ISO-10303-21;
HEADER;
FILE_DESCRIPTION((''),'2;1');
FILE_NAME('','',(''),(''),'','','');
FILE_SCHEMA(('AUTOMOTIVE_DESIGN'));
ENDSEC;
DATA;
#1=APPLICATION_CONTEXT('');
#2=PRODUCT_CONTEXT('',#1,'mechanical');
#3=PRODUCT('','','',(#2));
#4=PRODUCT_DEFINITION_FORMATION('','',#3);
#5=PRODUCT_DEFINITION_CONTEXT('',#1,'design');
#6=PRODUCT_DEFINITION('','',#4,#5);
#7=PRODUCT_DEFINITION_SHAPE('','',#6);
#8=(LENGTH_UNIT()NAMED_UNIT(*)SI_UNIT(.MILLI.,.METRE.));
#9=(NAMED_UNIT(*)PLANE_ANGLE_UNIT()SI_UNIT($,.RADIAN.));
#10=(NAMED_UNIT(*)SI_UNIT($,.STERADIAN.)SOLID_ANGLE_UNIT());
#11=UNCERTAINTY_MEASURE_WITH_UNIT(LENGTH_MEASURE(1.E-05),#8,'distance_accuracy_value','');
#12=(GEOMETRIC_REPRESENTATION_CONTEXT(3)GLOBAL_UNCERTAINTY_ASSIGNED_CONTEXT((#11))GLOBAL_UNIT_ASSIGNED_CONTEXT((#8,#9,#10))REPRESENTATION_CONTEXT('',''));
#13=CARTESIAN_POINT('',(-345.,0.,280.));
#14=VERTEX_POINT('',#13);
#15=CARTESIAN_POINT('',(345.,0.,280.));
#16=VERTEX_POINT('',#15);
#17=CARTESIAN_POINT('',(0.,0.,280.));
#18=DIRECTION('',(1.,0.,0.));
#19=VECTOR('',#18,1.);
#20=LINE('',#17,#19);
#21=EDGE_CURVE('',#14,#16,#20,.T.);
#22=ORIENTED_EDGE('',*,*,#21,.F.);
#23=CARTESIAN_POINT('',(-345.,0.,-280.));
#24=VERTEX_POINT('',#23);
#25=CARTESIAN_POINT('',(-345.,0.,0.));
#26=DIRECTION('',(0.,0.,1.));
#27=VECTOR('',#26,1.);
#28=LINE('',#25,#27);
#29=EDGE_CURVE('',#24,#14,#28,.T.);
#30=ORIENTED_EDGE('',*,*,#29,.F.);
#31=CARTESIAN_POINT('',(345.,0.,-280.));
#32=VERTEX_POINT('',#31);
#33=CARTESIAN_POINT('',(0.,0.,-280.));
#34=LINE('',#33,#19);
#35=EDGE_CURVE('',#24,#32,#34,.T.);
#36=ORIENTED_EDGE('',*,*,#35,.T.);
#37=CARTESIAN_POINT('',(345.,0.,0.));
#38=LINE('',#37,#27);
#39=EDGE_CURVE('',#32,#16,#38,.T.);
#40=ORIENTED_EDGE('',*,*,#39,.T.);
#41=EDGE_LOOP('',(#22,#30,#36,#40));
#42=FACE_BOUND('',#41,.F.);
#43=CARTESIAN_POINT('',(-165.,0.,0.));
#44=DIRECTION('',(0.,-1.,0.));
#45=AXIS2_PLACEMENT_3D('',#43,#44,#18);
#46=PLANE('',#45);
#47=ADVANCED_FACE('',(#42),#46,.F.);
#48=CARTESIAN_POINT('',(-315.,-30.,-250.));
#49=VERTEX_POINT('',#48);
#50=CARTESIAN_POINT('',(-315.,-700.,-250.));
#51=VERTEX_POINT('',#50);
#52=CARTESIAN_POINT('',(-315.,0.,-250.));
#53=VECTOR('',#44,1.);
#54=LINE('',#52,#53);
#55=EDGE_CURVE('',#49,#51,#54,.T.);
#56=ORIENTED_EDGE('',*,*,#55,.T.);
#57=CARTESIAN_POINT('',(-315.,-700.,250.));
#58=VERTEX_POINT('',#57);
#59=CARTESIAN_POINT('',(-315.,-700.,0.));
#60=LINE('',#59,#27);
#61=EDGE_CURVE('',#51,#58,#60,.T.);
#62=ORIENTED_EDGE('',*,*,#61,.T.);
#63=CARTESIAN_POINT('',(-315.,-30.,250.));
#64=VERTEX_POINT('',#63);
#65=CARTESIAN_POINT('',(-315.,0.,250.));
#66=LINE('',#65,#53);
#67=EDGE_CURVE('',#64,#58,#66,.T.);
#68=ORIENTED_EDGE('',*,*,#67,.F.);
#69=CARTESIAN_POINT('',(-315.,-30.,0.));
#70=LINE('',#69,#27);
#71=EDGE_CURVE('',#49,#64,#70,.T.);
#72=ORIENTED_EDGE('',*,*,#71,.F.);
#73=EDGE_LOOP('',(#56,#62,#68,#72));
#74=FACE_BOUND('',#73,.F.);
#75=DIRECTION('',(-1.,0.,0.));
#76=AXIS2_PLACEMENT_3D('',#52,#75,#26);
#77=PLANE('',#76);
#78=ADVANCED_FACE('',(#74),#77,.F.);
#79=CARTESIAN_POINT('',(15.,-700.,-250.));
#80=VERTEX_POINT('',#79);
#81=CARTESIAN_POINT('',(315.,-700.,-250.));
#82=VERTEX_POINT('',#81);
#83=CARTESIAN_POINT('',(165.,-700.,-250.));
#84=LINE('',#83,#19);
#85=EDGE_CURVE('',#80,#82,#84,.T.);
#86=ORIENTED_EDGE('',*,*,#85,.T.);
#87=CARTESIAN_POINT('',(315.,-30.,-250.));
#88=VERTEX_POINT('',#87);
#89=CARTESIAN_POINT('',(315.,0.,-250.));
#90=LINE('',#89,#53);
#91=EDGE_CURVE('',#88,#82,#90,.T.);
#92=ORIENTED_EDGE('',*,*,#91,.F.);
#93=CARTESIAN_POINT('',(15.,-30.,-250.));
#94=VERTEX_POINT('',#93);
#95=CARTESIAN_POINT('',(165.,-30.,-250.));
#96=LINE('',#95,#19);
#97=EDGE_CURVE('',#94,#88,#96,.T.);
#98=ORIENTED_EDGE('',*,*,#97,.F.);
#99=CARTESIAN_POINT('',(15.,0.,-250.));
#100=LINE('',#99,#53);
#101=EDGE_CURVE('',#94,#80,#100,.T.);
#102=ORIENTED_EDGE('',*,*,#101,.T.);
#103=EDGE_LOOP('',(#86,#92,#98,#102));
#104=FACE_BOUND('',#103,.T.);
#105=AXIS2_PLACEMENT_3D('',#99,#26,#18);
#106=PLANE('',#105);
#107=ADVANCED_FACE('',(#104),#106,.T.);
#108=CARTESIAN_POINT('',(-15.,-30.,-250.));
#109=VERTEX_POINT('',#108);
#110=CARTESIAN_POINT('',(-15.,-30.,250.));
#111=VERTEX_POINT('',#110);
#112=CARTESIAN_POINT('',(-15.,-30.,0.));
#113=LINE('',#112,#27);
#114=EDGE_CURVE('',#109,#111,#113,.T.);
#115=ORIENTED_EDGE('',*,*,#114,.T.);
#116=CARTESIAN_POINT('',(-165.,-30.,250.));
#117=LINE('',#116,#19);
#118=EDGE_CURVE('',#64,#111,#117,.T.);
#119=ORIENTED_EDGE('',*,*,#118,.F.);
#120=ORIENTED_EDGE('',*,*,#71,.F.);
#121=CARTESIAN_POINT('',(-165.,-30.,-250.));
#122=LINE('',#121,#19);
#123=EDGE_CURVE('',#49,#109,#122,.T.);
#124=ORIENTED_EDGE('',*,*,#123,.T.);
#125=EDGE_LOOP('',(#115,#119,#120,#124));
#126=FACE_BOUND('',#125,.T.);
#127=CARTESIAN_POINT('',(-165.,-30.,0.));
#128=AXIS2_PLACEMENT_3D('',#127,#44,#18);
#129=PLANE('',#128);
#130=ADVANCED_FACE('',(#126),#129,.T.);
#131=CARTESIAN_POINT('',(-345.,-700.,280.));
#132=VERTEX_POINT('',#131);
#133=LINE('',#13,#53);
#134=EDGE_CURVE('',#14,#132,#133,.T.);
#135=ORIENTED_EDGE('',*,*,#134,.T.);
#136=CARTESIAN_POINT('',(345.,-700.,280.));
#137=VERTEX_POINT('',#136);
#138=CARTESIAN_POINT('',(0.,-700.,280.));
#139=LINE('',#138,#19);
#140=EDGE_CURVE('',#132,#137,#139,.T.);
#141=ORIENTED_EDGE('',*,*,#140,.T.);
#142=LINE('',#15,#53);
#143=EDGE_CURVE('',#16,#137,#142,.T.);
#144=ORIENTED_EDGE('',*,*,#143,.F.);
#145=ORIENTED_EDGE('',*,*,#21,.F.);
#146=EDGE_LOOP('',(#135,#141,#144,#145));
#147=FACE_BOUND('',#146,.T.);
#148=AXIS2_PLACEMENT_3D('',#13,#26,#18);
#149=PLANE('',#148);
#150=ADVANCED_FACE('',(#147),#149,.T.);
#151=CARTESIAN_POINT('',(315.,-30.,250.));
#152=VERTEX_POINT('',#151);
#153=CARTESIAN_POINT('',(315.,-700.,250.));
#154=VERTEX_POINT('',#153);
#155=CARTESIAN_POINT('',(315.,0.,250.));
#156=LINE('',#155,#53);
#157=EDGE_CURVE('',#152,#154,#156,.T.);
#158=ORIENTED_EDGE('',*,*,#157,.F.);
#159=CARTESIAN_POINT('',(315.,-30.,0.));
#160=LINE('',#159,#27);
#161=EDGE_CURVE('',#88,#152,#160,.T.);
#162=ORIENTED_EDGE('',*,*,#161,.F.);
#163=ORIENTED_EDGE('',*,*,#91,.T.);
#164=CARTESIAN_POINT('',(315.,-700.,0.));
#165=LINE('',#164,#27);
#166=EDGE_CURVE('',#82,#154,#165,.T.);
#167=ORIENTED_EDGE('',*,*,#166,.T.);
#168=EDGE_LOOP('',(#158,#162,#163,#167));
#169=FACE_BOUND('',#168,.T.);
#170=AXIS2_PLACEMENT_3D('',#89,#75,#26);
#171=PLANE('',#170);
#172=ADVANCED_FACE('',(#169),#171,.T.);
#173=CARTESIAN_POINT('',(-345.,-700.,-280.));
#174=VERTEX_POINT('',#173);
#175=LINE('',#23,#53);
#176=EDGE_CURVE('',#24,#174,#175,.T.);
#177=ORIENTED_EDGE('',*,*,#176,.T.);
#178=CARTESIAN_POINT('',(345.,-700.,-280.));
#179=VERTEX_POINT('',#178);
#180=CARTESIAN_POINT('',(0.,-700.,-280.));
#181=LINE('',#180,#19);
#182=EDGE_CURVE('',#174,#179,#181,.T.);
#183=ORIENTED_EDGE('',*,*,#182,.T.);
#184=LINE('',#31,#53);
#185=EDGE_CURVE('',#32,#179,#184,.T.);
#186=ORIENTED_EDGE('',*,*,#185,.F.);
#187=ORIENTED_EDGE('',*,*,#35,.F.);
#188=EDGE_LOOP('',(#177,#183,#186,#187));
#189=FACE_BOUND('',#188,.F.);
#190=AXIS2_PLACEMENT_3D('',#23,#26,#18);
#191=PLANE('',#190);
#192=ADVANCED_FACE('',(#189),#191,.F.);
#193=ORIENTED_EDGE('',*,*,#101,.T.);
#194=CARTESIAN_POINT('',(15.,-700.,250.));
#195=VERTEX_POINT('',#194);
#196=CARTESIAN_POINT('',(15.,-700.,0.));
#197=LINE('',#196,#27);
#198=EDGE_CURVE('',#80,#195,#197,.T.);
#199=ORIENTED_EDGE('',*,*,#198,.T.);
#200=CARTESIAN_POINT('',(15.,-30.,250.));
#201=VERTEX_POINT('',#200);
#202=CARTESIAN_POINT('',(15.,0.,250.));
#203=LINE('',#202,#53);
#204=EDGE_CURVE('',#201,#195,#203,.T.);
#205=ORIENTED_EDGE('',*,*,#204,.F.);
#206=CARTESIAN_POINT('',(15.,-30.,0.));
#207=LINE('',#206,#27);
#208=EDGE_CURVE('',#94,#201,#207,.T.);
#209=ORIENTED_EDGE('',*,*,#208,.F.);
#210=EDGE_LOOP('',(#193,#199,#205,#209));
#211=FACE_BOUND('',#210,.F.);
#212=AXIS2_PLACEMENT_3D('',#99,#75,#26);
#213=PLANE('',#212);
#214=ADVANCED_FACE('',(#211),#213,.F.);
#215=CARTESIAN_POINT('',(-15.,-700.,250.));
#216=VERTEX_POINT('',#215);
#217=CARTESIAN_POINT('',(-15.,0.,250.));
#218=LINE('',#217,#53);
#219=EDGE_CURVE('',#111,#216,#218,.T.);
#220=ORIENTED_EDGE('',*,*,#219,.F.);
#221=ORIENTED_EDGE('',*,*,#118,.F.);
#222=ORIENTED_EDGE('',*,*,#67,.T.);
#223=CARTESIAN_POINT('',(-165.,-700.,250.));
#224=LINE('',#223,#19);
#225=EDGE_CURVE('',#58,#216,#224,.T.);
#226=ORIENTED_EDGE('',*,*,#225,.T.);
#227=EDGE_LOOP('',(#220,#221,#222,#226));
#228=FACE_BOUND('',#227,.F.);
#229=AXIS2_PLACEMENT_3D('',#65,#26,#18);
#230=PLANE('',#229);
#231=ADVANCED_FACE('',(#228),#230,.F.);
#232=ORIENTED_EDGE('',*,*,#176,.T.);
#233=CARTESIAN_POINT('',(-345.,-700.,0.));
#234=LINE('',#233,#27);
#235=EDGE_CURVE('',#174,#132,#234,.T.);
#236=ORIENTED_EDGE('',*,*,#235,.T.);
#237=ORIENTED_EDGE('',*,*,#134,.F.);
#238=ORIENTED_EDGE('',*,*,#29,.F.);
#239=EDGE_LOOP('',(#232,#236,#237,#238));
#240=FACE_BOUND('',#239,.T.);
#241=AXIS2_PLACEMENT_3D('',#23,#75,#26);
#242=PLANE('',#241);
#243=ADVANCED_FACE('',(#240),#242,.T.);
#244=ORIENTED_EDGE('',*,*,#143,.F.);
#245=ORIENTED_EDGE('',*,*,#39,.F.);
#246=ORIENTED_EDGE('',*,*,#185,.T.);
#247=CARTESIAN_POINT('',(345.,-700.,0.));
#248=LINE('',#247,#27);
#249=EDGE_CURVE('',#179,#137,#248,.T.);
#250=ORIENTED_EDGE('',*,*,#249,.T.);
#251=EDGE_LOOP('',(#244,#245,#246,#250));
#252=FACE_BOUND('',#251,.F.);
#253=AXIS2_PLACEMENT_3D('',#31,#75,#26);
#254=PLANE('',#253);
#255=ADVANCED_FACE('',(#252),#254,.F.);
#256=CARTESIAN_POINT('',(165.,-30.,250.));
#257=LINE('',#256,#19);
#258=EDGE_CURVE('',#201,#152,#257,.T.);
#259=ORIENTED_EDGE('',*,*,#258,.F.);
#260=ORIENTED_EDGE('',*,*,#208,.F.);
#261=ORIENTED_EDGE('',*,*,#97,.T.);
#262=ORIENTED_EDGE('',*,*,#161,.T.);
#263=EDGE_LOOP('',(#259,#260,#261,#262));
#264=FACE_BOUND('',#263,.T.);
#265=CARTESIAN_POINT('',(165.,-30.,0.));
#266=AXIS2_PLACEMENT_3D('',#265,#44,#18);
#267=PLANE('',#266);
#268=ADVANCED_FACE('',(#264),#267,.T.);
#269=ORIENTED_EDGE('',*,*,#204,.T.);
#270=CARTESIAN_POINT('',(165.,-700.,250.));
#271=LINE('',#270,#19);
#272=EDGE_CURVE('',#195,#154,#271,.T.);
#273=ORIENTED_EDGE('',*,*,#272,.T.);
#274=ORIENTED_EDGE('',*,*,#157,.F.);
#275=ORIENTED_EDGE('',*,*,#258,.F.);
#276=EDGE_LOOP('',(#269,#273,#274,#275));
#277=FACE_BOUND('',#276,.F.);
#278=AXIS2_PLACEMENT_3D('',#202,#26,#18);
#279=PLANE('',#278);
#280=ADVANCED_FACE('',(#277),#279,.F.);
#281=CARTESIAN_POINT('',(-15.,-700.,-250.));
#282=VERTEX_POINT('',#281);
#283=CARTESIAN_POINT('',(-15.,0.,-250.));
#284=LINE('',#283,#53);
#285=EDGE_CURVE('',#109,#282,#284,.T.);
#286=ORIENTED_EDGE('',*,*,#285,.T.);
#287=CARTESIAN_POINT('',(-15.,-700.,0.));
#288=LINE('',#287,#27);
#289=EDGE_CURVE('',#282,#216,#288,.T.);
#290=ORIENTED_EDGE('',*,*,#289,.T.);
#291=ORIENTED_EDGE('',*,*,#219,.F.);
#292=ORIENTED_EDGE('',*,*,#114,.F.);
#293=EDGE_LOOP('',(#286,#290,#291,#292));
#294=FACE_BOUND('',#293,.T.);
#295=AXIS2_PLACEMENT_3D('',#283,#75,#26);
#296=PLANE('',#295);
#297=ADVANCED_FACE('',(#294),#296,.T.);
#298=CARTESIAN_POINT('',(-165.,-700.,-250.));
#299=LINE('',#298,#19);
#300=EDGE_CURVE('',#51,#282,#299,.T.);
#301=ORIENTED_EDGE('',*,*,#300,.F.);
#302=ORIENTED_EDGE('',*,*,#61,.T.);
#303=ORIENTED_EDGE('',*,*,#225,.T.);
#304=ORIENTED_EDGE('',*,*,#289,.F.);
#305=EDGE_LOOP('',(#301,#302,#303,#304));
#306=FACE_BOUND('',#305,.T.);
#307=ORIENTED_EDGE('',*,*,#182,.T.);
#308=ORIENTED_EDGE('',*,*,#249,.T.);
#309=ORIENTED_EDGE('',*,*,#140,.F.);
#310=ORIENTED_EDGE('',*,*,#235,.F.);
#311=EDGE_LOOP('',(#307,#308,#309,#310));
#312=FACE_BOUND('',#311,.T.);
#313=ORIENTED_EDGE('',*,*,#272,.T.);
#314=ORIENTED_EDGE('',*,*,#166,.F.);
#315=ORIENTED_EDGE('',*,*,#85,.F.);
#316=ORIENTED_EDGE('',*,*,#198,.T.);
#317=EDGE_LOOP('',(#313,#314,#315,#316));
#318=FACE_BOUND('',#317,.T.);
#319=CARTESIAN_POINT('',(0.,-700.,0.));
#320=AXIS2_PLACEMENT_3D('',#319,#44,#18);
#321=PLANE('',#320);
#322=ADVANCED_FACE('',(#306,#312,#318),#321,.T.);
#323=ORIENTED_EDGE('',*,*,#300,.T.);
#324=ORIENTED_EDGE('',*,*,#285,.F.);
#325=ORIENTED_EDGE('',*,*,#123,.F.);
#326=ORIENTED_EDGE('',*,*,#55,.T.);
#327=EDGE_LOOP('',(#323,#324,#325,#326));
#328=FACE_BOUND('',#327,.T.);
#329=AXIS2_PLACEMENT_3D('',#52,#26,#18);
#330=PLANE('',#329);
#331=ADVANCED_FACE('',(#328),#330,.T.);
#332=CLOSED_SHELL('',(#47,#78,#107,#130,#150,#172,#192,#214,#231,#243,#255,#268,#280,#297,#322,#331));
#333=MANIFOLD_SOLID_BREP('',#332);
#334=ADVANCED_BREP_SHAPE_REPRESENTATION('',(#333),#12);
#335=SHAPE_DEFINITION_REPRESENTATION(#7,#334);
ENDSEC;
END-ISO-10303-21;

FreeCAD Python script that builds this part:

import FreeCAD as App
import Part
import Sketcher
from FreeCAD import Vector
Q = App.Units.Quantity

doc = App.newDocument("Part")
body = doc.addObject("PartDesign::Body", "Body")

sketch1 = body.newObject("Sketcher::SketchObject", "Sketch")
sketch1.AttachmentSupport = (doc.getObject("XZ_Plane"), [""])
sketch1.MapMode = "FlatFace"
sketch1.addGeometry(Part.LineSegment(Vector(-345, 280, 0), Vector(-345, -280, 0)), False)
sketch1.addGeometry(Part.LineSegment(Vector(-345, -280, 0), Vector(345, -280, 0)), False)
sketch1.addGeometry(Part.LineSegment(Vector(345, -280, 0), Vector(345, 280, 0)), False)
sketch1.addGeometry(Part.LineSegment(Vector(345, 280, 0), Vector(-345, 280, 0)), False)
sketch1.addGeometry(Part.LineSegment(Vector(-15, -250, 0), Vector(-315, -250, 0)), False)
sketch1.addGeometry(Part.LineSegment(Vector(-315, -250, 0), Vector(-315, 250, 0)), False)
sketch1.addGeometry(Part.LineSegment(Vector(-315, 250, 0), Vector(-15, 250, 0)), False)
sketch1.addGeometry(Part.LineSegment(Vector(-15, 250, 0), Vector(-15, -250, 0)), False)
sketch1.addGeometry(Part.LineSegment(Vector(315, -250, 0), Vector(15, -250, 0)), False)
sketch1.addGeometry(Part.LineSegment(Vector(15, -250, 0), Vector(15, 250, 0)), False)
sketch1.addGeometry(Part.LineSegment(Vector(15, 250, 0), Vector(315, 250, 0)), False)
sketch1.addGeometry(Part.LineSegment(Vector(315, 250, 0), Vector(315, -250, 0)), False)
sketch1.addConstraint(Sketcher.Constraint("Coincident", 0, 2, 1, 1))
sketch1.addConstraint(Sketcher.Constraint("Coincident", 1, 2, 2, 1))
sketch1.addConstraint(Sketcher.Constraint("Coincident", 2, 2, 3, 1))
sketch1.addConstraint(Sketcher.Constraint("Coincident", 3, 2, 0, 1))
sketch1.addConstraint(Sketcher.Constraint("Coincident", 4, 2, 5, 1))
sketch1.addConstraint(Sketcher.Constraint("Coincident", 5, 2, 6, 1))
sketch1.addConstraint(Sketcher.Constraint("Coincident", 6, 2, 7, 1))
sketch1.addConstraint(Sketcher.Constraint("Coincident", 7, 2, 4, 1))
sketch1.addConstraint(Sketcher.Constraint("Coincident", 8, 2, 9, 1))
sketch1.addConstraint(Sketcher.Constraint("Coincident", 9, 2, 10, 1))
sketch1.addConstraint(Sketcher.Constraint("Coincident", 10, 2, 11, 1))
sketch1.addConstraint(Sketcher.Constraint("Coincident", 11, 2, 8, 1))
sketch1.addConstraint(Sketcher.Constraint("Vertical", 0))
sketch1.addConstraint(Sketcher.Constraint("Horizontal", 1))
sketch1.addConstraint(Sketcher.Constraint("Vertical", 2))
sketch1.addConstraint(Sketcher.Constraint("Horizontal", 3))
sketch1.addConstraint(Sketcher.Constraint("Horizontal", 4))
sketch1.addConstraint(Sketcher.Constraint("Vertical", 5))
sketch1.addConstraint(Sketcher.Constraint("Horizontal", 6))
sketch1.addConstraint(Sketcher.Constraint("Vertical", 7))
sketch1.addConstraint(Sketcher.Constraint("Horizontal", 8))
sketch1.addConstraint(Sketcher.Constraint("Vertical", 9))
sketch1.addConstraint(Sketcher.Constraint("Horizontal", 10))
sketch1.addConstraint(Sketcher.Constraint("Vertical", 11))
sketch1.addConstraint(Sketcher.Constraint("Symmetric", 0, 2, 2, 2, -1, 1))
sketch1.addConstraint(Sketcher.Constraint("Symmetric", 6, 2, 8, 2, -1, 1))
sketch1.addConstraint(Sketcher.Constraint("Symmetric", 4, 2, 10, 2, -1, 1))
sketch1.addConstraint(Sketcher.Constraint("Horizontal", 7, 2, 8, 2))
sketch1.addConstraint(Sketcher.Constraint("DistanceX", 1, 1, 1, 2, Q("690 mm")))
sketch1.addConstraint(Sketcher.Constraint("DistanceX", 4, 2, 4, 1, Q("300 mm")))
sketch1.addConstraint(Sketcher.Constraint("DistanceY", 0, 2, 0, 1, Q("560 mm")))
sketch1.addConstraint(Sketcher.Constraint("DistanceY", 5, 1, 5, 2, Q("500 mm")))
sketch1.addConstraint(Sketcher.Constraint("DistanceX", 4, 2, -1, 1, Q("315 mm")))
pad1 = body.newObject("PartDesign::Pad", "Pad")
pad1.Profile = sketch1
pad1.Length = 700

sketch2 = body.newObject("Sketcher::SketchObject", "Sketch001")
sketch2.AttachmentSupport = (doc.getObject("XZ_Plane"), [""])
sketch2.MapMode = "FlatFace"
sketch2.addGeometry(Part.LineSegment(Vector(-315, 250, 0), Vector(-315, -250, 0)), False)
sketch2.addGeometry(Part.LineSegment(Vector(-315, -250, 0), Vector(-15, -250, 0)), False)
sketch2.addGeometry(Part.LineSegment(Vector(-15, -250, 0), Vector(-15, 250, 0)), False)
sketch2.addGeometry(Part.LineSegment(Vector(-15, 250, 0), Vector(-315, 250, 0)), False)
sketch2.addGeometry(Part.LineSegment(Vector(15, 250, 0), Vector(15, -250, 0)), False)
sketch2.addGeometry(Part.LineSegment(Vector(15, -250, 0), Vector(315, -250, 0)), False)
sketch2.addGeometry(Part.LineSegment(Vector(315, -250, 0), Vector(315, 250, 0)), False)
sketch2.addGeometry(Part.LineSegment(Vector(315, 250, 0), Vector(15, 250, 0)), False)
sketch2.addConstraint(Sketcher.Constraint("Coincident", 0, 2, 1, 1))
sketch2.addConstraint(Sketcher.Constraint("Coincident", 1, 2, 2, 1))
sketch2.addConstraint(Sketcher.Constraint("Coincident", 2, 2, 3, 1))
sketch2.addConstraint(Sketcher.Constraint("Coincident", 3, 2, 0, 1))
sketch2.addConstraint(Sketcher.Constraint("Coincident", 4, 2, 5, 1))
sketch2.addConstraint(Sketcher.Constraint("Coincident", 5, 2, 6, 1))
sketch2.addConstraint(Sketcher.Constraint("Coincident", 6, 2, 7, 1))
sketch2.addConstraint(Sketcher.Constraint("Coincident", 7, 2, 4, 1))
sketch2.addConstraint(Sketcher.Constraint("Vertical", 0))
sketch2.addConstraint(Sketcher.Constraint("Horizontal", 1))
sketch2.addConstraint(Sketcher.Constraint("Vertical", 2))
sketch2.addConstraint(Sketcher.Constraint("Horizontal", 3))
sketch2.addConstraint(Sketcher.Constraint("Vertical", 4))
sketch2.addConstraint(Sketcher.Constraint("Horizontal", 5))
sketch2.addConstraint(Sketcher.Constraint("Vertical", 6))
sketch2.addConstraint(Sketcher.Constraint("Horizontal", 7))
sketch2.addConstraint(Sketcher.Constraint("Symmetric", 2, 2, 4, 2, -1, 1))
sketch2.addConstraint(Sketcher.Constraint("Symmetric", 0, 2, 6, 2, -1, 1))
sketch2.addConstraint(Sketcher.Constraint("Horizontal", 1, 2, 4, 2))
sketch2.addConstraint(Sketcher.Constraint("DistanceX", 1, 1, 1, 2, Q("300 mm")))
sketch2.addConstraint(Sketcher.Constraint("DistanceY", 0, 2, 0, 1, Q("500 mm")))
sketch2.addConstraint(Sketcher.Constraint("DistanceX", 0, 2, -1, 1, Q("315 mm")))
pad2 = body.newObject("PartDesign::Pad", "Pad001")
pad2.Profile = sketch2
pad2.Length = 30

doc.recompute()
